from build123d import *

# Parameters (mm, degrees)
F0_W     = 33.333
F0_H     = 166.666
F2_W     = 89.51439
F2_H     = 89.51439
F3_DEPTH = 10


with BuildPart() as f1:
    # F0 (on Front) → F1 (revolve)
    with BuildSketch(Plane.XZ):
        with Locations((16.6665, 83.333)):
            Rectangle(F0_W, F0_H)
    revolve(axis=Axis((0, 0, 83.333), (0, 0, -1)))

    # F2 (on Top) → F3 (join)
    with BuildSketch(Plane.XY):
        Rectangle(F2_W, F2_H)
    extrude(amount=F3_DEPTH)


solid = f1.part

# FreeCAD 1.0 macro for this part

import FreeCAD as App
import Part
import Sketcher

doc = App.newDocument("Part")
body = doc.addObject("PartDesign::Body", "Body")

# Sketch on XZ plane
sketch1 = body.newObject("Sketcher::SketchObject", "Sketch")
sketch1.AttachmentSupport = (doc.getObject("XZ_Plane"), [""])
sketch1.MapMode = "FlatFace"
sketch1.addGeometry(Part.LineSegment(App.Vector(0, 167, 0), App.Vector(0, 0, 0)), False)
sketch1.addGeometry(Part.LineSegment(App.Vector(0, 0, 0), App.Vector(33, 0, 0)), False)
sketch1.addGeometry(Part.LineSegment(App.Vector(33, 0, 0), App.Vector(33, 167, 0)), False)
sketch1.addGeometry(Part.LineSegment(App.Vector(33, 167, 0), App.Vector(0, 167, 0)), False)
sketch1.addConstraint(Sketcher.Constraint("Coincident", 0, 2, 1, 1))
sketch1.addConstraint(Sketcher.Constraint("Coincident", 1, 2, 2, 1))
sketch1.addConstraint(Sketcher.Constraint("Coincident", 2, 2, 3, 1))
sketch1.addConstraint(Sketcher.Constraint("Coincident", 3, 2, 0, 1))
sketch1.addConstraint(Sketcher.Constraint("Vertical", 0))
sketch1.addConstraint(Sketcher.Constraint("Horizontal", 1))
sketch1.addConstraint(Sketcher.Constraint("Vertical", 2))
sketch1.addConstraint(Sketcher.Constraint("Horizontal", 3))
sketch1.addConstraint(Sketcher.Constraint("Coincident", 0, 2, -1, 1))
sketch1.addConstraint(Sketcher.Constraint("DistanceX", 1, 1, 1, 2, 33.333))
sketch1.addConstraint(Sketcher.Constraint("DistanceY", 0, 2, 0, 1, 166.666))
revolution = body.newObject("PartDesign::Revolution", "Revolution")
revolution.Profile = sketch1
revolution.ReferenceAxis = (sketch1, ["V_Axis"])
revolution.Angle = 360

# Sketch on XY plane
sketch2 = body.newObject("Sketcher::SketchObject", "Sketch001")
sketch2.AttachmentSupport = (doc.getObject("XY_Plane"), [""])
sketch2.MapMode = "FlatFace"
sketch2.addGeometry(Part.LineSegment(App.Vector(-45, 45, 0), App.Vector(-45, -45, 0)), False)
sketch2.addGeometry(Part.LineSegment(App.Vector(-45, -45, 0), App.Vector(45, -45, 0)), False)
sketch2.addGeometry(Part.LineSegment(App.Vector(45, -45, 0), App.Vector(45, 45, 0)), False)
sketch2.addGeometry(Part.LineSegment(App.Vector(45, 45, 0), App.Vector(-45, 45, 0)), False)
sketch2.addConstraint(Sketcher.Constraint("Coincident", 0, 2, 1, 1))
sketch2.addConstraint(Sketcher.Constraint("Coincident", 1, 2, 2, 1))
sketch2.addConstraint(Sketcher.Constraint("Coincident", 2, 2, 3, 1))
sketch2.addConstraint(Sketcher.Constraint("Coincident", 3, 2, 0, 1))
sketch2.addConstraint(Sketcher.Constraint("Vertical", 0))
sketch2.addConstraint(Sketcher.Constraint("Horizontal", 1))
sketch2.addConstraint(Sketcher.Constraint("Vertical", 2))
sketch2.addConstraint(Sketcher.Constraint("Horizontal", 3))
sketch2.addConstraint(Sketcher.Constraint("Symmetric", 0, 2, 2, 2, -1, 1))
sketch2.addConstraint(Sketcher.Constraint("Equal", 3, 0))
sketch2.addConstraint(Sketcher.Constraint("DistanceX", 1, 1, 1, 2, 89.51439))
pad1 = body.newObject("PartDesign::Pad", "Pad")
pad1.Profile = sketch2
pad1.Length = 10

doc.recompute()
